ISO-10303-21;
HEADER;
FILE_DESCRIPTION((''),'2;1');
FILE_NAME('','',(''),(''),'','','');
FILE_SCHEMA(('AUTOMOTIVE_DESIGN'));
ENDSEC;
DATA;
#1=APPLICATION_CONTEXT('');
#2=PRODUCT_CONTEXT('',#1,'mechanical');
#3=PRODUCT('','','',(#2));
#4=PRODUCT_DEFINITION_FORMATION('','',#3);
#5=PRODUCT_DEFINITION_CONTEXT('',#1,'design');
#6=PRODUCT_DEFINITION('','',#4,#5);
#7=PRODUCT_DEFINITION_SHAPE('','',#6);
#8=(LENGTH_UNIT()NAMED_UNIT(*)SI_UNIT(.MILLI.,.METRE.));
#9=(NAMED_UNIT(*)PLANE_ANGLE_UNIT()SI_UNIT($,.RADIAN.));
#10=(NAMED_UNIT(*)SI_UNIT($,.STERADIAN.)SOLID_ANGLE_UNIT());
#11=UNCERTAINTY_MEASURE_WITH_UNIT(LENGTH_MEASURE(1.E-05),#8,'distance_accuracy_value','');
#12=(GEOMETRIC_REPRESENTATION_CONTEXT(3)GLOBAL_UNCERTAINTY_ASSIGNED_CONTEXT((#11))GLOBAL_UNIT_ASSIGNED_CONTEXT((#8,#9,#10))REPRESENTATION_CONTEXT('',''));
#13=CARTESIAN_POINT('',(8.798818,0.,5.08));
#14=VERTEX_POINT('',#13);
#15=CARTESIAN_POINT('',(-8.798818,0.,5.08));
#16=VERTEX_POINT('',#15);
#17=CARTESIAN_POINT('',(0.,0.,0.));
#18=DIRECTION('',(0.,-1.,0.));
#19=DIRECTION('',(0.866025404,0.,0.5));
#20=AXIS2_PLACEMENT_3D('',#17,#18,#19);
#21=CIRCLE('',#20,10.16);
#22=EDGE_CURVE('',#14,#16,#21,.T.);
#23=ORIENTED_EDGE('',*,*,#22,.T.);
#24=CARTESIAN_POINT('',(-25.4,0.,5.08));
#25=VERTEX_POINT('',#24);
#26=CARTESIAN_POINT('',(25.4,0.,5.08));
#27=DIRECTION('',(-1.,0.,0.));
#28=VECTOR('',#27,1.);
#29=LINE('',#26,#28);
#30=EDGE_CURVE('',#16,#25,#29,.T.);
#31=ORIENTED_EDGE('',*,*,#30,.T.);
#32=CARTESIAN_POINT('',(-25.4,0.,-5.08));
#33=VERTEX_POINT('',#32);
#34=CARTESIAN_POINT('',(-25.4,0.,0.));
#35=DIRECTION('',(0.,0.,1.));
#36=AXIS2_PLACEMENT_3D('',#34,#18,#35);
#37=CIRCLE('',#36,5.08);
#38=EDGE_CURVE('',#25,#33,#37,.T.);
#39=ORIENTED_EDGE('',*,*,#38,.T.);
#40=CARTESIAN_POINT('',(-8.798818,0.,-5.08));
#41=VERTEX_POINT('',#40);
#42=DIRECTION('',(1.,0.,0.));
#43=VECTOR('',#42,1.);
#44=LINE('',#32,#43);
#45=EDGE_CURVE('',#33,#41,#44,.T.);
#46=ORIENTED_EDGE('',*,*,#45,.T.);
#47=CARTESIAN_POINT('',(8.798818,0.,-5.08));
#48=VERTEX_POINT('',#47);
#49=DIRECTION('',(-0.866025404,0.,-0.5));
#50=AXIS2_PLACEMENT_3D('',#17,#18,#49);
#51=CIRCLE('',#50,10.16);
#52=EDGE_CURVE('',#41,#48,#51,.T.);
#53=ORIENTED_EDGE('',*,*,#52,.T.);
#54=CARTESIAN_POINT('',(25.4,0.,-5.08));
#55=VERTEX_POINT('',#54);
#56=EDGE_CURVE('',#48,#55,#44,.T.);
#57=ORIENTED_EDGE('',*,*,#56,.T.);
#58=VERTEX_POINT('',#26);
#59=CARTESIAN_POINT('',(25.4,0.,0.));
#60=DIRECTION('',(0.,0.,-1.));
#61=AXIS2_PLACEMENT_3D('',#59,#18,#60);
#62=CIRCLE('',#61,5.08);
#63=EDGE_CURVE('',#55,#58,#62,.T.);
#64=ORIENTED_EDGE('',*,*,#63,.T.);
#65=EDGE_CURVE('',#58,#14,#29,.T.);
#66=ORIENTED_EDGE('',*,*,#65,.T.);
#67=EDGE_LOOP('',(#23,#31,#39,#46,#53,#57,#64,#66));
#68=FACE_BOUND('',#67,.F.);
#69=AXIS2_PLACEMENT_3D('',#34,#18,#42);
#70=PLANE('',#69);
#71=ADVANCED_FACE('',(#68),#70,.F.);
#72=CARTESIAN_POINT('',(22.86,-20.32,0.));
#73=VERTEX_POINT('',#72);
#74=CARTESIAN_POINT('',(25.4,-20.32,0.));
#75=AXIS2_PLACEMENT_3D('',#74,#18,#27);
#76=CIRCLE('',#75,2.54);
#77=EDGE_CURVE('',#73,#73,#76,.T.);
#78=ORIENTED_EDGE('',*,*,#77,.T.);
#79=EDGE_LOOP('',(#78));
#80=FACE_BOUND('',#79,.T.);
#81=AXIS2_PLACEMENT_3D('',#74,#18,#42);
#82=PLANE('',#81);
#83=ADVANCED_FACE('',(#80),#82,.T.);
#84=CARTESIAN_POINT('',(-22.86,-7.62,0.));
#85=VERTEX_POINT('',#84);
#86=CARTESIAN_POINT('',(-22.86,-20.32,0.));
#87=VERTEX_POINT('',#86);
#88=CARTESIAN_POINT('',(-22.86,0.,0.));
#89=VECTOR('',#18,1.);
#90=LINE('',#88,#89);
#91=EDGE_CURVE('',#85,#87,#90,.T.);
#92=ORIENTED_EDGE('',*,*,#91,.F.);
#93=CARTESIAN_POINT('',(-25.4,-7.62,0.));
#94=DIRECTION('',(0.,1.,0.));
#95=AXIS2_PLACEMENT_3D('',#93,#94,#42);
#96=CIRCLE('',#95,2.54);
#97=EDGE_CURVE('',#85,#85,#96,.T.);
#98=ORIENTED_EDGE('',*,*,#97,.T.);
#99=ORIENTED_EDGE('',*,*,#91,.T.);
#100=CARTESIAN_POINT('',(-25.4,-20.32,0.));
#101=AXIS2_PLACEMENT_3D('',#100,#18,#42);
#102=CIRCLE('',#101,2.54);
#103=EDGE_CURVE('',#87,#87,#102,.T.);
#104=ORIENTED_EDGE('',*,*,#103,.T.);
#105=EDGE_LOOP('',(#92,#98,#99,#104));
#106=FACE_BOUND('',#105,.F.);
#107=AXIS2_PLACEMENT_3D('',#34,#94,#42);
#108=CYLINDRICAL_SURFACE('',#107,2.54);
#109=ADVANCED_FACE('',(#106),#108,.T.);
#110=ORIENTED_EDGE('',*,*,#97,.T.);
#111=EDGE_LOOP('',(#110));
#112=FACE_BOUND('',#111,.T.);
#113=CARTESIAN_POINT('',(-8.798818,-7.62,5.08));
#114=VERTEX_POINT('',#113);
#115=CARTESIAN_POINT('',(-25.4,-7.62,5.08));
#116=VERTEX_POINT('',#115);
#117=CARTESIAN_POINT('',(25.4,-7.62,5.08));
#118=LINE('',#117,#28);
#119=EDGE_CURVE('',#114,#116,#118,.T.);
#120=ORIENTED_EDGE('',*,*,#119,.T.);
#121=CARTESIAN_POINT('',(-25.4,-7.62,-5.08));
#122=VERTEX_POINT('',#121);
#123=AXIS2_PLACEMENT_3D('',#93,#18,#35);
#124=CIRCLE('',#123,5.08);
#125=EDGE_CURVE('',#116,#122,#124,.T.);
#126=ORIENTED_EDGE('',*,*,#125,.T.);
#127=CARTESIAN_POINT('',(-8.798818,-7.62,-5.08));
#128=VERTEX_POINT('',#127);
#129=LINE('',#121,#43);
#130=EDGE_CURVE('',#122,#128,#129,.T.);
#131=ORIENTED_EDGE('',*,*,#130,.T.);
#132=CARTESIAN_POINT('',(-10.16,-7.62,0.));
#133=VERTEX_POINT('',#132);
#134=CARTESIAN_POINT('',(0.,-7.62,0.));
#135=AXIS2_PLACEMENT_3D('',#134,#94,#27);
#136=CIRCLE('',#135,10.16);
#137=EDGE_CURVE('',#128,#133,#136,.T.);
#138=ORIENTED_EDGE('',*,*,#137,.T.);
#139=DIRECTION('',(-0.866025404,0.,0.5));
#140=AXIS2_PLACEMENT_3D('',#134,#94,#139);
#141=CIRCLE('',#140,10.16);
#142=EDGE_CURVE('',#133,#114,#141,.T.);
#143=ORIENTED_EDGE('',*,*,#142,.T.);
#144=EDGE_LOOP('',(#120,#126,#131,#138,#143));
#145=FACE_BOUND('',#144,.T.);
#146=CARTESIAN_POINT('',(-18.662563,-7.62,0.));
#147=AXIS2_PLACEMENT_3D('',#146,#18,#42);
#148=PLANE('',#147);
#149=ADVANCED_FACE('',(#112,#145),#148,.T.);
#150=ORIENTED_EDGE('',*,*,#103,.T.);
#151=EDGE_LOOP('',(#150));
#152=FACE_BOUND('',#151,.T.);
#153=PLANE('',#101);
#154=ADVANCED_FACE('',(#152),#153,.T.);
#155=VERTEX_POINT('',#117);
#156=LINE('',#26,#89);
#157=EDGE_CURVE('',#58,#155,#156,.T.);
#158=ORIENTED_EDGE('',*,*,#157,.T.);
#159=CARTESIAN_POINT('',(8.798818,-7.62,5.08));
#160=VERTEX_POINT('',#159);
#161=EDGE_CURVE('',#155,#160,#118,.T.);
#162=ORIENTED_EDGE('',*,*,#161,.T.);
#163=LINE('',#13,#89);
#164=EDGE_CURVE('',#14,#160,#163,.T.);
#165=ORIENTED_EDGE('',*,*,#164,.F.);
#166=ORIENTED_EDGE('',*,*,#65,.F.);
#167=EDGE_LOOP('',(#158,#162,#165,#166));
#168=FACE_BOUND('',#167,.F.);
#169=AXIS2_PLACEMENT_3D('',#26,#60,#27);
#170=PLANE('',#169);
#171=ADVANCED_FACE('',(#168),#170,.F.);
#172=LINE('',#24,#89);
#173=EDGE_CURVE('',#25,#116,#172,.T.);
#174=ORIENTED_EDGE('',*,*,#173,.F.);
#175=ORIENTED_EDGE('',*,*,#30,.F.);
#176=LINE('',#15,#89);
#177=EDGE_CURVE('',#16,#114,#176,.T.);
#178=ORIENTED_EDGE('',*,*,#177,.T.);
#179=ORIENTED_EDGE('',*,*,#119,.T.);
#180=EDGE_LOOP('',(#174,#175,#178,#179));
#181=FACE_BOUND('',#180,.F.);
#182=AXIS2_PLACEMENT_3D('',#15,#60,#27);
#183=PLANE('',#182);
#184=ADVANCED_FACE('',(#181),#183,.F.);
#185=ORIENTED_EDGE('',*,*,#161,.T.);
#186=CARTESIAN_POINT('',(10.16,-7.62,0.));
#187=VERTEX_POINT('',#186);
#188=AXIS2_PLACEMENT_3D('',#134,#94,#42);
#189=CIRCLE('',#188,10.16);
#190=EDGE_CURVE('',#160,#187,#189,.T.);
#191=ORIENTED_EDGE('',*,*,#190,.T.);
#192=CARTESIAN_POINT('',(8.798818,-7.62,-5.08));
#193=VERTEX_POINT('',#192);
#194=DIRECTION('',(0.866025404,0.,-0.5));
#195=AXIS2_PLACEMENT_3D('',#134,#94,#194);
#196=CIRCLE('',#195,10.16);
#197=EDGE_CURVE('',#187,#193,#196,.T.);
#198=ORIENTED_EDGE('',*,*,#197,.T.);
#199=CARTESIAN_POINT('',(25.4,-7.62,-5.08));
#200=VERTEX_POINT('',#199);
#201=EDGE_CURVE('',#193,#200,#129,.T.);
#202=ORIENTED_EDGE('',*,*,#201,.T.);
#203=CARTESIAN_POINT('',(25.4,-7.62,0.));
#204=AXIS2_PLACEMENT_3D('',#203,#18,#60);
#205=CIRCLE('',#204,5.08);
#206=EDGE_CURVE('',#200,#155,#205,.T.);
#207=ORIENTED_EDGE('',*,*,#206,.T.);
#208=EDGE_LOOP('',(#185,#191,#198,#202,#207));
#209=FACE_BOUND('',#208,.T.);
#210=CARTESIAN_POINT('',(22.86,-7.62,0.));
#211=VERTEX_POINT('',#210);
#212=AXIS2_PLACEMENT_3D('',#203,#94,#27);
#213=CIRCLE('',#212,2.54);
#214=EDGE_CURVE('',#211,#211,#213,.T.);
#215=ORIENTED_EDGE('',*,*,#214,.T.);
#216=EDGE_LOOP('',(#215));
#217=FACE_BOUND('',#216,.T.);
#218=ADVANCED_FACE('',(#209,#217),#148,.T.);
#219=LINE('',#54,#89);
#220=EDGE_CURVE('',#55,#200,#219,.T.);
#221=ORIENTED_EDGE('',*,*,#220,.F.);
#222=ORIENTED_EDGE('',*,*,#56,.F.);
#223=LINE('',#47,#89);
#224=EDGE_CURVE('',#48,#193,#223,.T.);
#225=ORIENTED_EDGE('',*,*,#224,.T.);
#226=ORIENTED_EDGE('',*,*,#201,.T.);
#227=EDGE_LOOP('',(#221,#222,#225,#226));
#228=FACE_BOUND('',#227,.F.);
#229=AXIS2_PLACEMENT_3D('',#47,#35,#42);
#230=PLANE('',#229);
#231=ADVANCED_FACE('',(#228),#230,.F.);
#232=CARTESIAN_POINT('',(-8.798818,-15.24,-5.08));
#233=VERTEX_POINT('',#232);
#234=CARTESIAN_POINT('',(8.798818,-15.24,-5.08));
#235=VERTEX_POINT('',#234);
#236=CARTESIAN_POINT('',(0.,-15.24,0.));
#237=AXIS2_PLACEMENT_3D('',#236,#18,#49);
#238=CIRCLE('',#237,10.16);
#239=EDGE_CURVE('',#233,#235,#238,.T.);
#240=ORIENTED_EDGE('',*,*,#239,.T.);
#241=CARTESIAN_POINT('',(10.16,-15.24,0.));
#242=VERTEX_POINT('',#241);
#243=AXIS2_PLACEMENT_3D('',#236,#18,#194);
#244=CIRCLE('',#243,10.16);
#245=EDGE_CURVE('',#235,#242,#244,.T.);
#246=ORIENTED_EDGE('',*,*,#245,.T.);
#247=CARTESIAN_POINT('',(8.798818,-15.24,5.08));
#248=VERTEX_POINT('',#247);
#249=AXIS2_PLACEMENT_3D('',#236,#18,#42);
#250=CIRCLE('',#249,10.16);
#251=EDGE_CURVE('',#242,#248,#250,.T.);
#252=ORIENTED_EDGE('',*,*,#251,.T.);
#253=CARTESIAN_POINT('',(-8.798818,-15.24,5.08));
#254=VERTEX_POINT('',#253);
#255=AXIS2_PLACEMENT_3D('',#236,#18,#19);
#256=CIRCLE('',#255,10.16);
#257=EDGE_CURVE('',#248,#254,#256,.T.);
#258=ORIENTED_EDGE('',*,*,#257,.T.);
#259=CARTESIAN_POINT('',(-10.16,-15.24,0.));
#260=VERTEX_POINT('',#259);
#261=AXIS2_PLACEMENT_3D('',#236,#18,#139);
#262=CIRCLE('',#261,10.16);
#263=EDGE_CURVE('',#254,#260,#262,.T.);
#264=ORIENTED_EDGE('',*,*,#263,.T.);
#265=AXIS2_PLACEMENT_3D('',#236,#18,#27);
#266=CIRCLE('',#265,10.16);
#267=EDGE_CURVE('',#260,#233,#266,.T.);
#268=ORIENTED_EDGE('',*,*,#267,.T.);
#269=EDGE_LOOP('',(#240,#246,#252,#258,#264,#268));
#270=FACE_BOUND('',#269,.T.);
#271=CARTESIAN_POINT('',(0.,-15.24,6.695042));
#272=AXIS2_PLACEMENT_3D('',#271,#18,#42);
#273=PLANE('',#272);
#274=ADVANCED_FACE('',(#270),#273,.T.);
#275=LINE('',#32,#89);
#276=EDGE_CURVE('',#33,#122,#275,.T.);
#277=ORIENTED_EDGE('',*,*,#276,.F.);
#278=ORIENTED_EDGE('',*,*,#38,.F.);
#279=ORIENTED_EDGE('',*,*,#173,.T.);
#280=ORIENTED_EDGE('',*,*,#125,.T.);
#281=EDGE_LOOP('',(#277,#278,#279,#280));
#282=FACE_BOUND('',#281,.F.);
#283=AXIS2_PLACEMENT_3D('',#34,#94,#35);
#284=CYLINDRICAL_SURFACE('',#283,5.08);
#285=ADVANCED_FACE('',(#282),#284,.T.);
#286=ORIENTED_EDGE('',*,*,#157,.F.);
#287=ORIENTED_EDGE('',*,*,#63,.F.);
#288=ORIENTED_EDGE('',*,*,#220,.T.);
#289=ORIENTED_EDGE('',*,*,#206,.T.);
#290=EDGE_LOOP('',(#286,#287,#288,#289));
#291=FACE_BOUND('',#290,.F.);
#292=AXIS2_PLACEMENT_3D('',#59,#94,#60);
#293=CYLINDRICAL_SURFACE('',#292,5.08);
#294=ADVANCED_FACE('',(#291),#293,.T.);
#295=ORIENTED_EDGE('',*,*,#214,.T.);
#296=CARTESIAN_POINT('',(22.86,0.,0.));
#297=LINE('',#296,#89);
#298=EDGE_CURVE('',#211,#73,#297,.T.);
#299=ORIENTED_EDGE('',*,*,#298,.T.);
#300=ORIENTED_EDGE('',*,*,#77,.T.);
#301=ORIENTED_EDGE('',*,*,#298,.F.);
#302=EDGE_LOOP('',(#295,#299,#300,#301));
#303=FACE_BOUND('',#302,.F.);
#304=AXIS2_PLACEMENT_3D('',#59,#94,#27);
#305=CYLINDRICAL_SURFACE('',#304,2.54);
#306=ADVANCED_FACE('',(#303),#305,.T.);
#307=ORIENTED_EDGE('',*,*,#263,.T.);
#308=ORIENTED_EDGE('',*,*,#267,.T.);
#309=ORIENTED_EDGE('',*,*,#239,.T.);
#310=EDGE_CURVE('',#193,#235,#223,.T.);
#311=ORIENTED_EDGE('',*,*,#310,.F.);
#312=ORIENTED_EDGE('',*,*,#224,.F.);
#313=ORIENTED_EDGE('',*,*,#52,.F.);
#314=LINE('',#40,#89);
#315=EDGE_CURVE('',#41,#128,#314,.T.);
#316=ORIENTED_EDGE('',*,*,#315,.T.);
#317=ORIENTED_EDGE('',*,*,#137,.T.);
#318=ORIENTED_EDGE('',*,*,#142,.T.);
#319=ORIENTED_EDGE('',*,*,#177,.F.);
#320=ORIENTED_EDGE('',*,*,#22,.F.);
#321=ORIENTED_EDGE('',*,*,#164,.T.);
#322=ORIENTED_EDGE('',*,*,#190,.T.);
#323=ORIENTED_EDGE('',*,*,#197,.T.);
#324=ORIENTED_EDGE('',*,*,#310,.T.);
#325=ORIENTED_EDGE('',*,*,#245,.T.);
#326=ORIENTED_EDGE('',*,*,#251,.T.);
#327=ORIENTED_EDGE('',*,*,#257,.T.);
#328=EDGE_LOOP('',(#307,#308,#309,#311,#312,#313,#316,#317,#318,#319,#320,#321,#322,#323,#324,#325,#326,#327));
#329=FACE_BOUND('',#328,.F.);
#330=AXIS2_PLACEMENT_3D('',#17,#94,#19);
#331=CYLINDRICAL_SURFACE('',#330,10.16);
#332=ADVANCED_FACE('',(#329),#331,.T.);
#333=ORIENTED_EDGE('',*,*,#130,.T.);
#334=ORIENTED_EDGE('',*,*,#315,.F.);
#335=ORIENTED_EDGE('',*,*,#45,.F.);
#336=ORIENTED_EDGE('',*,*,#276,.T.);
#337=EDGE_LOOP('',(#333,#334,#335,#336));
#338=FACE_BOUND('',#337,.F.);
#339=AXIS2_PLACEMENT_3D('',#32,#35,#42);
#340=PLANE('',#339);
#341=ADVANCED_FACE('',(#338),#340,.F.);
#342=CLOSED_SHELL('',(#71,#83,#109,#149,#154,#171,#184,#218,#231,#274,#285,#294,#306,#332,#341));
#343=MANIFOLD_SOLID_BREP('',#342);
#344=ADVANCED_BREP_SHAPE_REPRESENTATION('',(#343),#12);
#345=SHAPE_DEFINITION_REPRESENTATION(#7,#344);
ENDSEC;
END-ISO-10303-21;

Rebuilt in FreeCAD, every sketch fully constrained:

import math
import FreeCAD as App
import Part
import Sketcher
from FreeCAD import Vector
Q = App.Units.Quantity

doc = App.newDocument("Part")
params = doc.addObject("Spreadsheet::Sheet", "Params")
for row, (alias, value) in enumerate([
    ("sketch1_radius", "0.2 in"),
    ("sketch1_radius2", "0.4 in"),
    ("pad1_length", "0.3 in"),
    ("sketch2_radius", "0.4 in"),
    ("pad2_length", "0.6 in"),
    ("sketch3_diameter", "0.2 in"),
    ("pad3_length", "0.8 in"),
], start=1):
    params.set(f"A{row}", alias)
    params.set(f"B{row}", "=" + value)
    params.setAlias(f"B{row}", alias)

body = doc.addObject("PartDesign::Body", "Body")

sketch1 = doc.addObject("Sketcher::SketchObject", "Sketch")
body.addObject(sketch1)
sketch1.AttachmentSupport = (doc.XZ_Plane, [""])
sketch1.MapMode = "FlatFace"
sketch1.addGeometry([
    Part.ArcOfCircle(Part.Circle(Vector(-25, 0, 0), Vector(0, 0, 1), 5), math.radians(90), math.radians(270)),
    Part.LineSegment(Vector(-25, -5, 0), Vector(-9, -5, 0)),
    Part.ArcOfCircle(Part.Circle(Vector(0, 0, 0), Vector(0, 0, 1), 10), math.radians(-150), math.radians(-30)),
    Part.LineSegment(Vector(9, -5, 0), Vector(25, -5, 0)),
    Part.ArcOfCircle(Part.Circle(Vector(25, 0, 0), Vector(0, 0, 1), 5), math.radians(-90), math.radians(90)),
    Part.LineSegment(Vector(25, 5, 0), Vector(9, 5, 0)),
    Part.ArcOfCircle(Part.Circle(Vector(0, 0, 0), Vector(0, 0, 1), 10), math.radians(30), math.radians(150)),
    Part.LineSegment(Vector(-9, 5, 0), Vector(-25, 5, 0)),
], False)
sketch1.addConstraint([
    Sketcher.Constraint("Tangent", 0, 2, 1, 1),
    Sketcher.Constraint("Coincident", 1, 2, 2, 1),
    Sketcher.Constraint("Coincident", 2, 2, 3, 1),
    Sketcher.Constraint("Tangent", 3, 2, 4, 1),
    Sketcher.Constraint("Tangent", 4, 2, 5, 1),
    Sketcher.Constraint("Coincident", 5, 2, 6, 1),
    Sketcher.Constraint("Coincident", 6, 2, 7, 1),
    Sketcher.Constraint("Tangent", 7, 2, 0, 1),
    Sketcher.Constraint("Horizontal", 1),
    Sketcher.Constraint("Horizontal", 3),
    Sketcher.Constraint("Horizontal", 5),
    Sketcher.Constraint("Horizontal", 7),
    Sketcher.Constraint("Coincident", 2, 3, -1, 1),
    Sketcher.Constraint("Coincident", 6, 3, -1, 1),
    Sketcher.Constraint("Equal", 0, 4),
    Sketcher.Constraint("Equal", 2, 6),
    Sketcher.Constraint("Symmetric", 0, 3, 4, 3, -1, 1),
    Sketcher.Constraint("PointOnObject", 0, 3, -1),
    Sketcher.Constraint("Radius", 0, Q("0.2 in")),
    Sketcher.Constraint("Radius", 2, Q("0.4 in")),
    Sketcher.Constraint("DistanceX", 0, 3, -1, 1, Q("1 in")),
])
sketch1.setExpression("Constraints[18]", "Params.sketch1_radius")
sketch1.setExpression("Constraints[19]", "Params.sketch1_radius2")
pad1 = doc.addObject("PartDesign::Pad", "Pad")
body.addObject(pad1)
pad1.Profile = sketch1
pad1.setExpression("Length", "Params.pad1_length")

sketch2 = doc.addObject("Sketcher::SketchObject", "Sketch001")
body.addObject(sketch2)
sketch2.AttachmentSupport = (doc.XZ_Plane, [""])
sketch2.MapMode = "FlatFace"
sketch2.addGeometry([
    Part.ArcOfCircle(Part.Circle(Vector(0, 0, 0), Vector(0, 0, 1), 10), math.radians(30), math.radians(150)),
    Part.ArcOfCircle(Part.Circle(Vector(0, 0, 0), Vector(0, 0, 1), 10), math.radians(150), math.radians(180)),
    Part.ArcOfCircle(Part.Circle(Vector(0, 0, 0), Vector(0, 0, 1), 10), math.radians(180), math.radians(210)),
    Part.ArcOfCircle(Part.Circle(Vector(0, 0, 0), Vector(0, 0, 1), 10), math.radians(-150), math.radians(-30)),
    Part.ArcOfCircle(Part.Circle(Vector(0, 0, 0), Vector(0, 0, 1), 10), math.radians(-30), math.radians(0)),
    Part.ArcOfCircle(Part.Circle(Vector(0, 0, 0), Vector(0, 0, 1), 10), math.radians(0), math.radians(30)),
], False)
sketch2.addConstraint([
    Sketcher.Constraint("Tangent", 0, 2, 1, 1),
    Sketcher.Constraint("Tangent", 1, 2, 2, 1),
    Sketcher.Constraint("Tangent", 2, 2, 3, 1),
    Sketcher.Constraint("Tangent", 3, 2, 4, 1),
    Sketcher.Constraint("Tangent", 4, 2, 5, 1),
    Sketcher.Constraint("Tangent", 5, 2, 0, 1),
    Sketcher.Constraint("Coincident", 0, 3, -1, 1),
    Sketcher.Constraint("Coincident", 2, 3, -1, 1),
    Sketcher.Constraint("Equal", 2, 3),
    Sketcher.Constraint("PointOnObject", 1, 2, -1),
    Sketcher.Constraint("PointOnObject", 4, 2, -1),
    Sketcher.Constraint("Horizontal", 2, 2, 3, 2),
    Sketcher.Constraint("Horizontal", 0, 2, 5, 2),
    Sketcher.Constraint("Vertical", 0, 2, 2, 2),
    Sketcher.Constraint("Radius", 0, Q("0.4 in")),
    Sketcher.Constraint("DistanceY", -1, 1, 0, 2, Q("0.2 in")),
])
sketch2.setExpression("Constraints[14]", "Params.sketch2_radius")
pad2 = doc.addObject("PartDesign::Pad", "Pad001")
body.addObject(pad2)
pad2.Profile = sketch2
pad2.setExpression("Length", "Params.pad2_length")

sketch3 = doc.addObject("Sketcher::SketchObject", "Sketch002")
body.addObject(sketch3)
sketch3.AttachmentSupport = (doc.XZ_Plane, [""])
sketch3.MapMode = "FlatFace"
sketch3.addGeometry([
    Part.Circle(Vector(-25.4, 0, 0), Vector(0, 0, 1), 2.5),
    Part.Circle(Vector(25.4, 0, 0), Vector(0, 0, 1), 2.5),
], False)
sketch3.addConstraint([
    Sketcher.Constraint("Equal", 0, 1),
    Sketcher.Constraint("Symmetric", 0, 3, 1, 3, -1, 1),
    Sketcher.Constraint("PointOnObject", 0, 3, -1),
    Sketcher.Constraint("Diameter", 0, Q("0.2 in")),
    Sketcher.Constraint("DistanceX", 0, 3, -1, 1, Q("1 in")),
])
sketch3.setExpression("Constraints[3]", "Params.sketch3_diameter")
pad3 = doc.addObject("PartDesign::Pad", "Pad002")
body.addObject(pad3)
pad3.Profile = sketch3
pad3.setExpression("Length", "Params.pad3_length")

doc.recompute()
